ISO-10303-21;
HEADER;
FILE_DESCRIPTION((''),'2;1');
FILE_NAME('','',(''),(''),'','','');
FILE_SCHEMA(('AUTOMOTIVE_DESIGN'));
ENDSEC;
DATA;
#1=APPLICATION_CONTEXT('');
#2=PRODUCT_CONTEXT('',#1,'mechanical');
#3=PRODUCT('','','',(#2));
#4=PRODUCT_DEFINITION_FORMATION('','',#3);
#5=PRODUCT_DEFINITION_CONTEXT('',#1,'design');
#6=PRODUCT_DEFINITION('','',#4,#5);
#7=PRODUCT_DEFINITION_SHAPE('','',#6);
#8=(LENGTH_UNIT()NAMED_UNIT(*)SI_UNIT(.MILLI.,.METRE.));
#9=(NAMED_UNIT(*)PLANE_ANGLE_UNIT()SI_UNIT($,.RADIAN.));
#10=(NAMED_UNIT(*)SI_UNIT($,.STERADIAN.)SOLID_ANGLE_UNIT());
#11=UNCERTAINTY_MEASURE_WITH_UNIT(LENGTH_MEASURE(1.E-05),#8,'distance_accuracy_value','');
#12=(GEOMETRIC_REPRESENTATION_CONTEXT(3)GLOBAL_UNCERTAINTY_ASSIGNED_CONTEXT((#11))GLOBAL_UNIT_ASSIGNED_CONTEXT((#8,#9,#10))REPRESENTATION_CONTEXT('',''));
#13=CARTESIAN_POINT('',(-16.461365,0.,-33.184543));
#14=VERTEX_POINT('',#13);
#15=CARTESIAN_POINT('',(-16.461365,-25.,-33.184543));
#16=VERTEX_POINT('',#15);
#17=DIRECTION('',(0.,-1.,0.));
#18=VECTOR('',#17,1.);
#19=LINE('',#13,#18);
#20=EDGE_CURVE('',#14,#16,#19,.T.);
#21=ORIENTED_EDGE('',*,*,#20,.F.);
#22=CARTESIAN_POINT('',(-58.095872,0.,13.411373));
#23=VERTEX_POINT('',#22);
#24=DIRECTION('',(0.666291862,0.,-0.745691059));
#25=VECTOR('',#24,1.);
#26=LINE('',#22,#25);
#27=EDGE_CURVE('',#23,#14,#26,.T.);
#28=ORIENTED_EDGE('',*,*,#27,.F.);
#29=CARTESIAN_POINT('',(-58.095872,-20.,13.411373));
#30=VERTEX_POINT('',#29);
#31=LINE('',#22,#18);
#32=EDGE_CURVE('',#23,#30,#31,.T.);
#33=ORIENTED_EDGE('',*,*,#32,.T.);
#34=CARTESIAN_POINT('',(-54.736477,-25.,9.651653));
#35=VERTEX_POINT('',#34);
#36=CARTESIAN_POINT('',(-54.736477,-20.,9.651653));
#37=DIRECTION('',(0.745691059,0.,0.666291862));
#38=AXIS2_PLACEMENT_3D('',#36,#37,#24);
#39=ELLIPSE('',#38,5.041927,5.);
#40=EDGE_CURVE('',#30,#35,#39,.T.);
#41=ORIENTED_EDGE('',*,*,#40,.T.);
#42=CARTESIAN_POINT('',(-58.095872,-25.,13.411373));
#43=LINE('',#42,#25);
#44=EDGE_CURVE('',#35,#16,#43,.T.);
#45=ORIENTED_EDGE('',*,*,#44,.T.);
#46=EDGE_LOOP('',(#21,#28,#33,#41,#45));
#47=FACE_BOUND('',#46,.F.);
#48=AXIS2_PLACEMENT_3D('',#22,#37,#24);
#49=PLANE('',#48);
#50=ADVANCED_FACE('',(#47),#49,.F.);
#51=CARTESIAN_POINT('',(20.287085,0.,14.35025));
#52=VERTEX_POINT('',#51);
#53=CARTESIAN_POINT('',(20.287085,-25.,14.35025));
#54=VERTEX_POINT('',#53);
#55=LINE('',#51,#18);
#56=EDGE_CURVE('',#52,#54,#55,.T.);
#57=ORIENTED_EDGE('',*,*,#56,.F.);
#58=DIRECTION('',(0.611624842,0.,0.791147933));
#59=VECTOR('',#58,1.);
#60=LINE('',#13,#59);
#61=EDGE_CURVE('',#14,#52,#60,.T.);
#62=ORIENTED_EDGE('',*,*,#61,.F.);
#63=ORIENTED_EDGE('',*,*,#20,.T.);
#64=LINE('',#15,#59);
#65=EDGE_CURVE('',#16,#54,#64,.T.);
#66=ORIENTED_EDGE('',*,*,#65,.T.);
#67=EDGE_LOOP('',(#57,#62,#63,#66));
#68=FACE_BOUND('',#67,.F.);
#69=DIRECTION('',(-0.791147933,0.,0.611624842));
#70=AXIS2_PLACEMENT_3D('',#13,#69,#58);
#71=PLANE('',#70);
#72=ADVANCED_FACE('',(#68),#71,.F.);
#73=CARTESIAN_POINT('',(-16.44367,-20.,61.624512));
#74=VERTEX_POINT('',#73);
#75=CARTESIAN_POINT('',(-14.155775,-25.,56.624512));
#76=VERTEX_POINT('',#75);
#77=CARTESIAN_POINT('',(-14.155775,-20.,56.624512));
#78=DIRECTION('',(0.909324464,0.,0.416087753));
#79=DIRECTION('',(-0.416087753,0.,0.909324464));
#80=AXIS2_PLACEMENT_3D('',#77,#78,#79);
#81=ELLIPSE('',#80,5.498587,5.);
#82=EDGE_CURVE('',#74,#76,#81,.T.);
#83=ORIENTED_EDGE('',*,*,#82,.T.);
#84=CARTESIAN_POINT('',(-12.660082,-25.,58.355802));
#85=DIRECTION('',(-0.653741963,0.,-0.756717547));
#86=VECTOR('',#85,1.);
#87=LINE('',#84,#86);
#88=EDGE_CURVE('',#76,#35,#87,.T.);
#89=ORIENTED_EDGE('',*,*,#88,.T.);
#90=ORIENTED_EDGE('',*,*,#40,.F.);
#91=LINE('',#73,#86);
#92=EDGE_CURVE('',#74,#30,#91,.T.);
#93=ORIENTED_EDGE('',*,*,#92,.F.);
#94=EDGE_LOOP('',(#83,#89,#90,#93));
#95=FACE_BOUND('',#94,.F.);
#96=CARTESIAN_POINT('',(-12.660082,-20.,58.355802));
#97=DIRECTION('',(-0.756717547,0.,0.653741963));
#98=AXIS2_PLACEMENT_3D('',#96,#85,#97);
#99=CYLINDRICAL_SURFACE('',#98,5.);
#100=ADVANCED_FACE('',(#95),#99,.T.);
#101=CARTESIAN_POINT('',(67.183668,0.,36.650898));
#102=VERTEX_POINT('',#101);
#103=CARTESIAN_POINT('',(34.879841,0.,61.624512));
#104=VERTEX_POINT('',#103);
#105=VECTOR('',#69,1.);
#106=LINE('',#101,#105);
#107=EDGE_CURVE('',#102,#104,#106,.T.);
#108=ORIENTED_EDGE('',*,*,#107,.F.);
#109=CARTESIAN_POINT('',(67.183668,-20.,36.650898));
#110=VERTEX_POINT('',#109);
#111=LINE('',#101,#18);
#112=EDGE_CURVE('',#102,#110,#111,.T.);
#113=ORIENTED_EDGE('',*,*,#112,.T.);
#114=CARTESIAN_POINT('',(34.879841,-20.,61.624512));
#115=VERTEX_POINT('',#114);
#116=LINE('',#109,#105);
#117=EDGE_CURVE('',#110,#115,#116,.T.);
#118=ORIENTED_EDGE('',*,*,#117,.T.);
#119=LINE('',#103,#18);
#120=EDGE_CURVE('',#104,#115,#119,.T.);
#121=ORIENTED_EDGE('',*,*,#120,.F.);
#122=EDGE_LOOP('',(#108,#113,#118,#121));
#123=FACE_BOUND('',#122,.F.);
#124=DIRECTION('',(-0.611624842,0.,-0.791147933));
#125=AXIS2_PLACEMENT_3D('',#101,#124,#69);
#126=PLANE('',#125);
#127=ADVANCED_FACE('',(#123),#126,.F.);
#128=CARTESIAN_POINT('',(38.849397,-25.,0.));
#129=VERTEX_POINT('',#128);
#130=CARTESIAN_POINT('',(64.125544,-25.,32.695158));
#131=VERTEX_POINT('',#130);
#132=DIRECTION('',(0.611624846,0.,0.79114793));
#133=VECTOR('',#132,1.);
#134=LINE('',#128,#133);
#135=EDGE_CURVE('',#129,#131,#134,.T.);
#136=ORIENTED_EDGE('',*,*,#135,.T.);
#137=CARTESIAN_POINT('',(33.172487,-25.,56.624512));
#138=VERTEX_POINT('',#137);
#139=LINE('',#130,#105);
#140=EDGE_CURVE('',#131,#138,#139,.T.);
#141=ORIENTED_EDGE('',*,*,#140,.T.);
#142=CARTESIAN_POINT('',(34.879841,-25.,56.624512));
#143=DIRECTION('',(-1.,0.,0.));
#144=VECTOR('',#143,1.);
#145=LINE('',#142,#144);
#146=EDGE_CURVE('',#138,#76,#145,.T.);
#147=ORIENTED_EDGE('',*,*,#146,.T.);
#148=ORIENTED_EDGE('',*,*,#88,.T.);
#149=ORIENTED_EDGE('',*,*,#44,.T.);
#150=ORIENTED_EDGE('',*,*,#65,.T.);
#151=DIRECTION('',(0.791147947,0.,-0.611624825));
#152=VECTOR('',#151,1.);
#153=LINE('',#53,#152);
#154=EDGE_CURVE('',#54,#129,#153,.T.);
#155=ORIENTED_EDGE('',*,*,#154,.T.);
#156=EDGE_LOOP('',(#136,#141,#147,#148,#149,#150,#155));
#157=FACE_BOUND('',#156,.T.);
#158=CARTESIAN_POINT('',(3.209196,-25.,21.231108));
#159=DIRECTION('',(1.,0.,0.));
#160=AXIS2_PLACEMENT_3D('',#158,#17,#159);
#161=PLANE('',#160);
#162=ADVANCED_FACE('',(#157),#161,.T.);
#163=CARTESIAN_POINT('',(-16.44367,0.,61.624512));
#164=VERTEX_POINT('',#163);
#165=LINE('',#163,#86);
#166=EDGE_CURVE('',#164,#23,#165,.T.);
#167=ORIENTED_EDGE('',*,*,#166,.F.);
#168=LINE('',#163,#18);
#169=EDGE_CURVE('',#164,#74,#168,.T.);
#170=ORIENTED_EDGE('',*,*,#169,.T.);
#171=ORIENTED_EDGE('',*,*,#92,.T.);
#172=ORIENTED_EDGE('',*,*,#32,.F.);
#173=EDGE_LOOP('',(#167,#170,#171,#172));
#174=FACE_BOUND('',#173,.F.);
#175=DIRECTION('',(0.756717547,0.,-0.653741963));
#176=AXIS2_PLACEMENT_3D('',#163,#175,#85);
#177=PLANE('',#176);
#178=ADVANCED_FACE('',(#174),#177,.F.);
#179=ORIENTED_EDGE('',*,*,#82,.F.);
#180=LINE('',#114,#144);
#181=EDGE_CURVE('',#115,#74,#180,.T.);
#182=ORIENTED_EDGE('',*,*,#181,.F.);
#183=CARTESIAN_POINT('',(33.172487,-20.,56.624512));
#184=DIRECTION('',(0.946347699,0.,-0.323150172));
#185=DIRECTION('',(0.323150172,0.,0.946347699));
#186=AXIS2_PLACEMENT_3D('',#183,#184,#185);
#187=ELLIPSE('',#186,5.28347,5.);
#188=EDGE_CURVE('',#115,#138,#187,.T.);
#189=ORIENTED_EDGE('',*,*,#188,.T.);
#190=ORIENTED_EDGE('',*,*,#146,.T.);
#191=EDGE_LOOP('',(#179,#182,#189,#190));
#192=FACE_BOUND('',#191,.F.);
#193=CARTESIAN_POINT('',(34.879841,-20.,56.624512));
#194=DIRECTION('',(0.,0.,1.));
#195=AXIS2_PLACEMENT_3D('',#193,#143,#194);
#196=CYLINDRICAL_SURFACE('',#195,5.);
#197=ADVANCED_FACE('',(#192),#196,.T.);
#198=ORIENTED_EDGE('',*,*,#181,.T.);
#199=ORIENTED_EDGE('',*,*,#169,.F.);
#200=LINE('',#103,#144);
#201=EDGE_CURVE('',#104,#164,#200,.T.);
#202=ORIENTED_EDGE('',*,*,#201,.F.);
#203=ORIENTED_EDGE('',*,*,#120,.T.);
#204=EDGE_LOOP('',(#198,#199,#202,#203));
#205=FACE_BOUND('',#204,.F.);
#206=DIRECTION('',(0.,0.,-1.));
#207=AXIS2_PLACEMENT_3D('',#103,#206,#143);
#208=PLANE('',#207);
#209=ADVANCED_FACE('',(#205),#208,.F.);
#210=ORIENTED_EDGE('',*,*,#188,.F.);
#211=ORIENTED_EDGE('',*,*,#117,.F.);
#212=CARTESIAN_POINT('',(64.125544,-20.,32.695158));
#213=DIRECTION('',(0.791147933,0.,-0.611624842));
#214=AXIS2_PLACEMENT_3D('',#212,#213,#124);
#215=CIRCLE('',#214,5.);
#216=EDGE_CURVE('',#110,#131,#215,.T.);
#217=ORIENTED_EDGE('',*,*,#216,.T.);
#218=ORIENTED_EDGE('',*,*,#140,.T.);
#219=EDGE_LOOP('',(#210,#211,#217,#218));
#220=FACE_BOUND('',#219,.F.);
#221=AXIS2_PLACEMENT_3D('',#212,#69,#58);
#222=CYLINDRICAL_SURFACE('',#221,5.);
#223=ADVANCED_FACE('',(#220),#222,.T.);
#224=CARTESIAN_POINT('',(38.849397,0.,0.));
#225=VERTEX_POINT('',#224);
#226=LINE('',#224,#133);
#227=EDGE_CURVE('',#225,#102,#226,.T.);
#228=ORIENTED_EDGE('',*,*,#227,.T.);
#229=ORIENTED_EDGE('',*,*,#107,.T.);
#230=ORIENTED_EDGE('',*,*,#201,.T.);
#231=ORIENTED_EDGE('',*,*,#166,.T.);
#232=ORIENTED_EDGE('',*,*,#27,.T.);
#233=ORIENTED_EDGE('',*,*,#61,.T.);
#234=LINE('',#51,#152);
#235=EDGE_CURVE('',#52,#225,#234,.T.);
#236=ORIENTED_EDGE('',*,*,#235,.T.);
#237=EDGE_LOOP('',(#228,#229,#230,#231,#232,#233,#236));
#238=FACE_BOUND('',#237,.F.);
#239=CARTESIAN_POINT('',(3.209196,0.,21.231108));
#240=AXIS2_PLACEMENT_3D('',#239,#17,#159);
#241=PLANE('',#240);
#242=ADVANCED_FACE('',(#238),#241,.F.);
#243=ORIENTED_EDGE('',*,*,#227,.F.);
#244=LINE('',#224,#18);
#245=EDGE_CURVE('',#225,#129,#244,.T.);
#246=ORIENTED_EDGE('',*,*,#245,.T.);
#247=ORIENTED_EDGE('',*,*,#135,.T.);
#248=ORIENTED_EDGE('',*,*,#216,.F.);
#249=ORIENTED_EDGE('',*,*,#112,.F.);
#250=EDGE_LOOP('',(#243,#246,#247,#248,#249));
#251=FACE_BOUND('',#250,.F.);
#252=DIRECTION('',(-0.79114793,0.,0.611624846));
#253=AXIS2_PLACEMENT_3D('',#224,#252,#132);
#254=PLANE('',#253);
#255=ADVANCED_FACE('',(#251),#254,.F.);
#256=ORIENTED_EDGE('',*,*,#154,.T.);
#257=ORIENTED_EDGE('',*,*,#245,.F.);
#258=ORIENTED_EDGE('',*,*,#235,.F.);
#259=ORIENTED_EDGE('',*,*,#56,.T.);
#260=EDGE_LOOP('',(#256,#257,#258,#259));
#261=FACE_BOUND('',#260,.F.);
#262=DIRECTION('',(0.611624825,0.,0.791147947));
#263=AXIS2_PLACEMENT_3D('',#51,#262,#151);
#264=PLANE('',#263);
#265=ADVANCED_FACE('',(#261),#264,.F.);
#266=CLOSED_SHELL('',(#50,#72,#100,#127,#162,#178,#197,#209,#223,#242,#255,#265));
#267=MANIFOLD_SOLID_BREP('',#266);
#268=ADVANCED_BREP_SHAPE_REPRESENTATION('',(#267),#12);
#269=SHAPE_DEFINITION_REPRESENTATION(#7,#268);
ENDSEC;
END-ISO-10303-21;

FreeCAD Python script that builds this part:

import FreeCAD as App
import Part
import Sketcher

V = App.Vector
Q = App.Units.Quantity


def edges_at(feature, points):
    """Names of the edges that pass closest to the given points."""
    edges = feature.Shape.Edges
    near = lambda p: min(range(len(edges)), key=lambda i: edges[i].distToShape(Part.Vertex(*p))[0])
    return sorted({f"Edge{near(p) + 1}" for p in points})


def add_polygon(sketch, points):
    """Adds a closed chain of lines whose ends are joined by coincident constraints."""
    first, n = sketch.GeometryCount, len(points)
    for a, b in zip(points, points[1:] + points[:1]):
        sketch.addGeometry(Part.LineSegment(App.Vector(*a, 0), App.Vector(*b, 0)), False)
    for i in range(n):
        sketch.addConstraint(Sketcher.Constraint("Coincident", first + i, 2, first + (i + 1) % n, 1))

doc = App.newDocument("Part")
params = doc.addObject("Spreadsheet::Sheet", "Params")
for row, (alias, value) in enumerate([
    ("pad1_length", "25 mm"),
    ("fillet_radius", "5 mm"),
], start=1):
    params.set(f"A{row}", alias)
    params.set(f"B{row}", "=" + value)
    params.setAlias(f"B{row}", alias)

body = doc.addObject("PartDesign::Body", "Body")

sketch1 = doc.addObject("Sketcher::SketchObject", "Sketch")
body.addObject(sketch1)
sketch1.AttachmentSupport = (doc.XZ_Plane, [""])
sketch1.MapMode = "FlatFace"
add_polygon(sketch1, [(-58, 13), (-16, -33), (20, 14), (39, 0), (67, 37), (35, 62), (-16, 62)])
sketch1.addConstraint([
    Sketcher.Constraint("Horizontal", 5),
    Sketcher.Constraint("PointOnObject", 2, 2, -1),
    Sketcher.Constraint("Perpendicular", 1, 2),
    Sketcher.Constraint("Perpendicular", 2, 3),
    Sketcher.Constraint("Perpendicular", 3, 4),
    Sketcher.Constraint("DistanceX", 5, 2, 5, 1, Q("51.323511 mm")),
    Sketcher.Constraint("Distance", 0, Q("62.486891 mm")),
    Sketcher.Constraint("Distance", 1, Q("60.083318 mm")),
    Sketcher.Constraint("Distance", 4, Q("40.831589 mm")),
    Sketcher.Constraint("Distance", 6, Q("63.713521 mm")),
    Sketcher.Constraint("DistanceY", -1, 1, 1, 2, Q("14.35025 mm")),
    Sketcher.Constraint("DistanceX", -1, 1, 4, 2, Q("34.879841 mm")),
    Sketcher.Constraint("DistanceX", 0, 2, 1, 2, Q("36.74845 mm")),
    Sketcher.Constraint("DistanceX", 2, 2, 3, 2, Q("28.334271 mm")),
])
pad1 = doc.addObject("PartDesign::Pad", "Pad")
body.addObject(pad1)
pad1.Profile = sketch1
pad1.setExpression("Length", "Params.pad1_length")
doc.recompute()

fillet = doc.addObject("PartDesign::Fillet", "Fillet")
body.addObject(fillet)
fillet.Base = (pad1, edges_at(pad1, [(51.032, -25, 49.138), (9.218, -25, 61.625), (-37.27, -25, 37.518)]))
fillet.setExpression("Radius", "Params.fillet_radius")

doc.recompute()
